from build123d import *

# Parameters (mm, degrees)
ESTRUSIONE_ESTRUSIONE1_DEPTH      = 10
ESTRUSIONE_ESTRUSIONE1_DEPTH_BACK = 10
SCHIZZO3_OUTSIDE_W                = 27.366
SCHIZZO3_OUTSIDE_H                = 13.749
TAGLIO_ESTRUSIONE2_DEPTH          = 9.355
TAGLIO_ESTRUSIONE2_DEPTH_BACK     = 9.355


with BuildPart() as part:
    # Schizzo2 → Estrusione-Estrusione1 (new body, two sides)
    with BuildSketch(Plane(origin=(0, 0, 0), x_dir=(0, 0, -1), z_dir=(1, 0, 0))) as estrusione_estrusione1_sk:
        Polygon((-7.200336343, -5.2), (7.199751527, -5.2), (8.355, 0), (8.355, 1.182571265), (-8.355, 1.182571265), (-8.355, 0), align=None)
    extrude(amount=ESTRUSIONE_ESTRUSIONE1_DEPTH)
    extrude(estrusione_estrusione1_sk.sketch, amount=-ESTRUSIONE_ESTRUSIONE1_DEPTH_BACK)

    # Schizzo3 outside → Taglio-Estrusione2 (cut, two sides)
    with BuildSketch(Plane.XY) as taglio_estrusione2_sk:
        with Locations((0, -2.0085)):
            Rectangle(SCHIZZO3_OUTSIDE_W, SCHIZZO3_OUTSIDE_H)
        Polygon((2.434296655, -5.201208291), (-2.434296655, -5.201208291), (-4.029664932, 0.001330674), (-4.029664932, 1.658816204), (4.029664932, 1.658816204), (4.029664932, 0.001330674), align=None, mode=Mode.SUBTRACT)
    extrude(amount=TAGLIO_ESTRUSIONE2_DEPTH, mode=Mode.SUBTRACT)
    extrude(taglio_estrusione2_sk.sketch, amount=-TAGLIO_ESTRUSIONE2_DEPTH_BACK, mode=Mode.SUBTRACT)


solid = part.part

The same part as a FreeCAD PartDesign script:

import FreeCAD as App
import Part
import Sketcher

V = App.Vector

doc = App.newDocument("Part")
params = doc.addObject("Spreadsheet::Sheet", "Params")
for row, (alias, value) in enumerate([
    ("sketch1_height", "16.71 mm"),
    ("pad1_length", "10 mm"),
    ("pad1_length2", "10 mm"),
], start=1):
    params.set(f"A{row}", alias)
    params.set(f"B{row}", "=" + value)
    params.setAlias(f"B{row}", alias)

body = doc.addObject("PartDesign::Body", "Body")

# Sketch on YZ plane
sketch1 = body.newObject("Sketcher::SketchObject", "Sketch")
sketch1.AttachmentSupport = (doc.getObject("YZ_Plane"), [""])
sketch1.MapMode = "FlatFace"
sketch1.addGeometry([
    Part.LineSegment(V(-5.2, 7.200336, 0), V(-5.2, -7.199752, 0)),  # 0
    Part.LineSegment(V(-5.2, -7.199752, 0), V(0, -8.355, 0)),  # 1
    Part.LineSegment(V(0, -8.355, 0), V(1.182571, -8.355, 0)),  # 2
    Part.LineSegment(V(1.182571, -8.355, 0), V(1.182571, 8.355, 0)),  # 3
    Part.LineSegment(V(1.182571, 8.355, 0), V(0, 8.355, 0)),  # 4
    Part.LineSegment(V(0, 8.355, 0), V(-5.2, 7.200336, 0)),  # 5
], False)
sketch1.addConstraint([
    Sketcher.Constraint("Coincident", 0, 2, 1, 1),
    Sketcher.Constraint("Coincident", 1, 2, 2, 1),
    Sketcher.Constraint("Coincident", 2, 2, 3, 1),
    Sketcher.Constraint("Coincident", 3, 2, 4, 1),
    Sketcher.Constraint("Coincident", 4, 2, 5, 1),
    Sketcher.Constraint("Coincident", 5, 2, 0, 1),
    Sketcher.Constraint("Vertical", 0),
    Sketcher.Constraint("Horizontal", 2),
    Sketcher.Constraint("Vertical", 3),
    Sketcher.Constraint("Horizontal", 4),
    Sketcher.Constraint("Symmetric", 1, 2, 4, 2, -1, 1),
    Sketcher.Constraint("PointOnObject", 1, 2, -2),
    Sketcher.Constraint("DistanceY", 3, 1, 3, 2, 16.71),
    Sketcher.Constraint("DistanceX", 0, 2, -1, 1, 5.2),
    Sketcher.Constraint("DistanceX", 2, 1, 2, 2, 1.182571),
    Sketcher.Constraint("Distance", 1, 5.326781),
    Sketcher.Constraint("DistanceY", 0, 2, 0, 1, 14.400088),
])
sketch1.setExpression("Constraints[12]", "Params.sketch1_height")
pad1 = body.newObject("PartDesign::Pad", "Pad")
pad1.Profile = sketch1
pad1.Type = "TwoLengths"
pad1.setExpression("Length", "Params.pad1_length")
pad1.setExpression("Length2", "Params.pad1_length2")

# Sketch on XY plane
sketch2 = body.newObject("Sketcher::SketchObject", "Sketch001")
sketch2.AttachmentSupport = (doc.getObject("XY_Plane"), [""])
sketch2.MapMode = "FlatFace"
sketch2.addGeometry([
    Part.LineSegment(V(-13.683, 4.866, 0), V(-13.683, -8.883, 0)),  # 0
    Part.LineSegment(V(-13.683, -8.883, 0), V(13.683, -8.883, 0)),  # 1
    Part.LineSegment(V(13.683, -8.883, 0), V(13.683, 4.866, 0)),  # 2
    Part.LineSegment(V(13.683, 4.866, 0), V(-13.683, 4.866, 0)),  # 3
    Part.LineSegment(V(4.029665, 0.001331, 0), V(2.434297, -5.201208, 0)),  # 4
    Part.LineSegment(V(2.434297, -5.201208, 0), V(-2.434297, -5.201208, 0)),  # 5
    Part.LineSegment(V(-2.434297, -5.201208, 0), V(-4.029665, 0.001331, 0)),  # 6
    Part.LineSegment(V(-4.029665, 0.001331, 0), V(-4.029665, 1.658816, 0)),  # 7
    Part.LineSegment(V(-4.029665, 1.658816, 0), V(4.029665, 1.658816, 0)),  # 8
    Part.LineSegment(V(4.029665, 1.658816, 0), V(4.029665, 0.001331, 0)),  # 9
], False)
sketch2.addConstraint([
    Sketcher.Constraint("Coincident", 0, 2, 1, 1),
    Sketcher.Constraint("Coincident", 1, 2, 2, 1),
    Sketcher.Constraint("Coincident", 2, 2, 3, 1),
    Sketcher.Constraint("Coincident", 3, 2, 0, 1),
    Sketcher.Constraint("Coincident", 4, 2, 5, 1),
    Sketcher.Constraint("Coincident", 5, 2, 6, 1),
    Sketcher.Constraint("Coincident", 6, 2, 7, 1),
    Sketcher.Constraint("Coincident", 7, 2, 8, 1),
    Sketcher.Constraint("Coincident", 8, 2, 9, 1),
    Sketcher.Constraint("Coincident", 9, 2, 4, 1),
    Sketcher.Constraint("Vertical", 0),
    Sketcher.Constraint("Horizontal", 1),
    Sketcher.Constraint("Vertical", 2),
    Sketcher.Constraint("Horizontal", 3),
    Sketcher.Constraint("Horizontal", 5),
    Sketcher.Constraint("Vertical", 7),
    Sketcher.Constraint("Horizontal", 8),
    Sketcher.Constraint("Vertical", 9),
    Sketcher.Constraint("Symmetric", 6, 2, 9, 2, -2),
    Sketcher.Constraint("Equal", 4, 6),
    Sketcher.Constraint("DistanceX", 1, 1, 1, 2, 27.366),
    Sketcher.Constraint("DistanceY", 0, 2, 0, 1, 13.749),
    Sketcher.Constraint("DistanceX", 0, 2, -1, 1, 13.683),
    Sketcher.Constraint("DistanceY", 0, 2, -1, 1, 8.883),
    Sketcher.Constraint("DistanceX", 8, 1, 8, 2, 8.05933),
    Sketcher.Constraint("DistanceX", 5, 2, 5, 1, 4.868593),
    Sketcher.Constraint("DistanceY", 7, 1, 7, 2, 1.657486),
    Sketcher.Constraint("DistanceY", 4, 2, -1, 1, 5.201208),
    Sketcher.Constraint("DistanceY", -1, 1, 6, 2, 0.001331),
])
pocket1 = body.newObject("PartDesign::Pocket", "Pocket")
pocket1.Profile = sketch2
pocket1.Type = "ThroughAll"
pocket1.Midplane = True

doc.recompute()
